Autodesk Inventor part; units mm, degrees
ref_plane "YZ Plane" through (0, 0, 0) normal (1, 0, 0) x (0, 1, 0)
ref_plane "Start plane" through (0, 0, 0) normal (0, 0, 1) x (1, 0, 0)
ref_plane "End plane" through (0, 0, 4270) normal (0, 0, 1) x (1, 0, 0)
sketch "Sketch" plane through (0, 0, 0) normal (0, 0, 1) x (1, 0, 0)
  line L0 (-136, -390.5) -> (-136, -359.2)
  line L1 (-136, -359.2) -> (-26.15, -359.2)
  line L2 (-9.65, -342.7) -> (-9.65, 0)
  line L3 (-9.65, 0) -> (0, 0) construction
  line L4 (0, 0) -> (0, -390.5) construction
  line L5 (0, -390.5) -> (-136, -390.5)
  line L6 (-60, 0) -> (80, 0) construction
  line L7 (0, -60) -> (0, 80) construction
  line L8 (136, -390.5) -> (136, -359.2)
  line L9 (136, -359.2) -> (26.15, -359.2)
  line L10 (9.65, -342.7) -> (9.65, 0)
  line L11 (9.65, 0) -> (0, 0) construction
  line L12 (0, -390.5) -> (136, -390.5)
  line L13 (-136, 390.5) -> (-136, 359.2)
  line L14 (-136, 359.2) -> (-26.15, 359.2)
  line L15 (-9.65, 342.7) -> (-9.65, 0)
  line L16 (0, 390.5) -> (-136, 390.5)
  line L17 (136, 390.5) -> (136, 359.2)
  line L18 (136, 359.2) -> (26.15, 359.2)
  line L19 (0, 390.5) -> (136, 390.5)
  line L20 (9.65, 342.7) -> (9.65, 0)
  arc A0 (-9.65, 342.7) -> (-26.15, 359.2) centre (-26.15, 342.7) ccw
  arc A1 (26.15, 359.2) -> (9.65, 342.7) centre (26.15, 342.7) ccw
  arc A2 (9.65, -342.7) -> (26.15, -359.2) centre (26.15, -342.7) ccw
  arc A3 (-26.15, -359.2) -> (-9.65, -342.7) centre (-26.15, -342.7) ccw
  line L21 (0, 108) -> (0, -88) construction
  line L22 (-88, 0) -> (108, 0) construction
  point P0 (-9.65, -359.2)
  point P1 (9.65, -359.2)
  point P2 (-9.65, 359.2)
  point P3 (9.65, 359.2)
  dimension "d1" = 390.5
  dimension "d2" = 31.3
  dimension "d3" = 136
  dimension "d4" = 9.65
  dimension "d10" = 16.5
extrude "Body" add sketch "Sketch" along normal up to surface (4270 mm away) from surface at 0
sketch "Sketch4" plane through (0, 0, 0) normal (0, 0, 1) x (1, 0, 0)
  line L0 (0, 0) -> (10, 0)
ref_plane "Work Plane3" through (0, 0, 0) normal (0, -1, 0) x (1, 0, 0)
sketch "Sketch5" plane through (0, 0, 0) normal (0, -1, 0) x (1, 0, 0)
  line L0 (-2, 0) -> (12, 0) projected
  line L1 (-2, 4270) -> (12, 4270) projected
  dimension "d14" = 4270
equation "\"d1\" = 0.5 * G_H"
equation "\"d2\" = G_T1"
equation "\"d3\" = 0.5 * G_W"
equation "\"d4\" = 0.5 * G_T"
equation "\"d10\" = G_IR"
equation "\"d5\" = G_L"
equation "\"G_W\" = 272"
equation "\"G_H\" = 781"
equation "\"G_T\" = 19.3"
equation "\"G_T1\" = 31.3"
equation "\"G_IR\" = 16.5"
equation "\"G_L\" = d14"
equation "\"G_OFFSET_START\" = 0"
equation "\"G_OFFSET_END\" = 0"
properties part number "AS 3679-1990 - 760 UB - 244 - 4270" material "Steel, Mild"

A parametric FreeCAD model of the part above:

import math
import FreeCAD as App
import Part
import Sketcher
from FreeCAD import Vector
Q = App.Units.Quantity

doc = App.newDocument("Part")
params = doc.addObject("Spreadsheet::Sheet", "Params")
for row, (alias, value) in enumerate([
    ("sketch1_radius", "16.5 mm"),
    ("sketch1_height", "31.3 mm"),
    ("pad1_length", "4270 mm"),
], start=1):
    params.set(f"A{row}", alias)
    params.set(f"B{row}", "=" + value)
    params.setAlias(f"B{row}", alias)

body = doc.addObject("PartDesign::Body", "Body")

sketch1 = body.newObject("Sketcher::SketchObject", "Sketch")
sketch1.AttachmentSupport = (doc.getObject("XY_Plane"), [""])
sketch1.MapMode = "FlatFace"
sketch1.addGeometry([
    Part.LineSegment(Vector(-136, -359, 0), Vector(-136, -390, 0)),
    Part.LineSegment(Vector(-136, -390, 0), Vector(136, -390, 0)),
    Part.LineSegment(Vector(136, -390, 0), Vector(136, -359, 0)),
    Part.LineSegment(Vector(136, -359, 0), Vector(26, -359, 0)),
    Part.ArcOfCircle(Part.Circle(Vector(26, -343, 0), Vector(0, 0, 1), 16), math.radians(180), math.radians(270)),
    Part.LineSegment(Vector(10, -343, 0), Vector(10, 343, 0)),
    Part.ArcOfCircle(Part.Circle(Vector(26, 343, 0), Vector(0, 0, 1), 16), math.radians(90), math.radians(180)),
    Part.LineSegment(Vector(26, 359, 0), Vector(136, 359, 0)),
    Part.LineSegment(Vector(136, 359, 0), Vector(136, 390, 0)),
    Part.LineSegment(Vector(136, 390, 0), Vector(-136, 390, 0)),
    Part.LineSegment(Vector(-136, 390, 0), Vector(-136, 359, 0)),
    Part.LineSegment(Vector(-136, 359, 0), Vector(-26, 359, 0)),
    Part.ArcOfCircle(Part.Circle(Vector(-26, 343, 0), Vector(0, 0, 1), 16), math.radians(0), math.radians(90)),
    Part.LineSegment(Vector(-10, 343, 0), Vector(-10, -343, 0)),
    Part.ArcOfCircle(Part.Circle(Vector(-26, -343, 0), Vector(0, 0, 1), 16), math.radians(-90), math.radians(0)),
    Part.LineSegment(Vector(-26, -359, 0), Vector(-136, -359, 0)),
], False)
sketch1.addConstraint([
    Sketcher.Constraint("Coincident", 0, 2, 1, 1),
    Sketcher.Constraint("Coincident", 1, 2, 2, 1),
    Sketcher.Constraint("Coincident", 2, 2, 3, 1),
    Sketcher.Constraint("Tangent", 3, 2, 4, 2),
    Sketcher.Constraint("Tangent", 4, 1, 5, 1),
    Sketcher.Constraint("Tangent", 5, 2, 6, 2),
    Sketcher.Constraint("Tangent", 6, 1, 7, 1),
    Sketcher.Constraint("Coincident", 7, 2, 8, 1),
    Sketcher.Constraint("Coincident", 8, 2, 9, 1),
    Sketcher.Constraint("Coincident", 9, 2, 10, 1),
    Sketcher.Constraint("Coincident", 10, 2, 11, 1),
    Sketcher.Constraint("Tangent", 11, 2, 12, 2),
    Sketcher.Constraint("Tangent", 12, 1, 13, 1),
    Sketcher.Constraint("Tangent", 13, 2, 14, 2),
    Sketcher.Constraint("Tangent", 14, 1, 15, 1),
    Sketcher.Constraint("Coincident", 15, 2, 0, 1),
    Sketcher.Constraint("Vertical", 0),
    Sketcher.Constraint("Horizontal", 1),
    Sketcher.Constraint("Vertical", 2),
    Sketcher.Constraint("Horizontal", 3),
    Sketcher.Constraint("Vertical", 5),
    Sketcher.Constraint("Horizontal", 7),
    Sketcher.Constraint("Vertical", 8),
    Sketcher.Constraint("Horizontal", 9),
    Sketcher.Constraint("Vertical", 10),
    Sketcher.Constraint("Horizontal", 11),
    Sketcher.Constraint("Vertical", 13),
    Sketcher.Constraint("Horizontal", 15),
    Sketcher.Constraint("Equal", 4, 6),
    Sketcher.Constraint("Equal", 6, 12),
    Sketcher.Constraint("Equal", 12, 14),
    Sketcher.Constraint("Symmetric", 4, 3, 12, 3, -1, 1),
    Sketcher.Constraint("Symmetric", 0, 2, 8, 2, -1, 1),
    Sketcher.Constraint("Symmetric", 7, 2, 10, 2, -2),
    Sketcher.Constraint("Symmetric", 2, 2, 15, 2, -2),
    Sketcher.Constraint("Radius", 4, Q("16.5 mm")),
    Sketcher.Constraint("DistanceY", 0, 2, 0, 1, Q("31.3 mm")),
    Sketcher.Constraint("DistanceX", 0, 2, -1, 1, Q("136 mm")),
    Sketcher.Constraint("DistanceY", 0, 2, -1, 1, Q("390.5 mm")),
    Sketcher.Constraint("DistanceX", -1, 1, 4, 1, Q("9.65 mm")),
])
sketch1.setExpression("Constraints[35]", "Params.sketch1_radius")
sketch1.setExpression("Constraints[36]", "Params.sketch1_height")
pad1 = body.newObject("PartDesign::Pad", "Pad")
pad1.Profile = sketch1
pad1.setExpression("Length", "Params.pad1_length")

doc.recompute()
